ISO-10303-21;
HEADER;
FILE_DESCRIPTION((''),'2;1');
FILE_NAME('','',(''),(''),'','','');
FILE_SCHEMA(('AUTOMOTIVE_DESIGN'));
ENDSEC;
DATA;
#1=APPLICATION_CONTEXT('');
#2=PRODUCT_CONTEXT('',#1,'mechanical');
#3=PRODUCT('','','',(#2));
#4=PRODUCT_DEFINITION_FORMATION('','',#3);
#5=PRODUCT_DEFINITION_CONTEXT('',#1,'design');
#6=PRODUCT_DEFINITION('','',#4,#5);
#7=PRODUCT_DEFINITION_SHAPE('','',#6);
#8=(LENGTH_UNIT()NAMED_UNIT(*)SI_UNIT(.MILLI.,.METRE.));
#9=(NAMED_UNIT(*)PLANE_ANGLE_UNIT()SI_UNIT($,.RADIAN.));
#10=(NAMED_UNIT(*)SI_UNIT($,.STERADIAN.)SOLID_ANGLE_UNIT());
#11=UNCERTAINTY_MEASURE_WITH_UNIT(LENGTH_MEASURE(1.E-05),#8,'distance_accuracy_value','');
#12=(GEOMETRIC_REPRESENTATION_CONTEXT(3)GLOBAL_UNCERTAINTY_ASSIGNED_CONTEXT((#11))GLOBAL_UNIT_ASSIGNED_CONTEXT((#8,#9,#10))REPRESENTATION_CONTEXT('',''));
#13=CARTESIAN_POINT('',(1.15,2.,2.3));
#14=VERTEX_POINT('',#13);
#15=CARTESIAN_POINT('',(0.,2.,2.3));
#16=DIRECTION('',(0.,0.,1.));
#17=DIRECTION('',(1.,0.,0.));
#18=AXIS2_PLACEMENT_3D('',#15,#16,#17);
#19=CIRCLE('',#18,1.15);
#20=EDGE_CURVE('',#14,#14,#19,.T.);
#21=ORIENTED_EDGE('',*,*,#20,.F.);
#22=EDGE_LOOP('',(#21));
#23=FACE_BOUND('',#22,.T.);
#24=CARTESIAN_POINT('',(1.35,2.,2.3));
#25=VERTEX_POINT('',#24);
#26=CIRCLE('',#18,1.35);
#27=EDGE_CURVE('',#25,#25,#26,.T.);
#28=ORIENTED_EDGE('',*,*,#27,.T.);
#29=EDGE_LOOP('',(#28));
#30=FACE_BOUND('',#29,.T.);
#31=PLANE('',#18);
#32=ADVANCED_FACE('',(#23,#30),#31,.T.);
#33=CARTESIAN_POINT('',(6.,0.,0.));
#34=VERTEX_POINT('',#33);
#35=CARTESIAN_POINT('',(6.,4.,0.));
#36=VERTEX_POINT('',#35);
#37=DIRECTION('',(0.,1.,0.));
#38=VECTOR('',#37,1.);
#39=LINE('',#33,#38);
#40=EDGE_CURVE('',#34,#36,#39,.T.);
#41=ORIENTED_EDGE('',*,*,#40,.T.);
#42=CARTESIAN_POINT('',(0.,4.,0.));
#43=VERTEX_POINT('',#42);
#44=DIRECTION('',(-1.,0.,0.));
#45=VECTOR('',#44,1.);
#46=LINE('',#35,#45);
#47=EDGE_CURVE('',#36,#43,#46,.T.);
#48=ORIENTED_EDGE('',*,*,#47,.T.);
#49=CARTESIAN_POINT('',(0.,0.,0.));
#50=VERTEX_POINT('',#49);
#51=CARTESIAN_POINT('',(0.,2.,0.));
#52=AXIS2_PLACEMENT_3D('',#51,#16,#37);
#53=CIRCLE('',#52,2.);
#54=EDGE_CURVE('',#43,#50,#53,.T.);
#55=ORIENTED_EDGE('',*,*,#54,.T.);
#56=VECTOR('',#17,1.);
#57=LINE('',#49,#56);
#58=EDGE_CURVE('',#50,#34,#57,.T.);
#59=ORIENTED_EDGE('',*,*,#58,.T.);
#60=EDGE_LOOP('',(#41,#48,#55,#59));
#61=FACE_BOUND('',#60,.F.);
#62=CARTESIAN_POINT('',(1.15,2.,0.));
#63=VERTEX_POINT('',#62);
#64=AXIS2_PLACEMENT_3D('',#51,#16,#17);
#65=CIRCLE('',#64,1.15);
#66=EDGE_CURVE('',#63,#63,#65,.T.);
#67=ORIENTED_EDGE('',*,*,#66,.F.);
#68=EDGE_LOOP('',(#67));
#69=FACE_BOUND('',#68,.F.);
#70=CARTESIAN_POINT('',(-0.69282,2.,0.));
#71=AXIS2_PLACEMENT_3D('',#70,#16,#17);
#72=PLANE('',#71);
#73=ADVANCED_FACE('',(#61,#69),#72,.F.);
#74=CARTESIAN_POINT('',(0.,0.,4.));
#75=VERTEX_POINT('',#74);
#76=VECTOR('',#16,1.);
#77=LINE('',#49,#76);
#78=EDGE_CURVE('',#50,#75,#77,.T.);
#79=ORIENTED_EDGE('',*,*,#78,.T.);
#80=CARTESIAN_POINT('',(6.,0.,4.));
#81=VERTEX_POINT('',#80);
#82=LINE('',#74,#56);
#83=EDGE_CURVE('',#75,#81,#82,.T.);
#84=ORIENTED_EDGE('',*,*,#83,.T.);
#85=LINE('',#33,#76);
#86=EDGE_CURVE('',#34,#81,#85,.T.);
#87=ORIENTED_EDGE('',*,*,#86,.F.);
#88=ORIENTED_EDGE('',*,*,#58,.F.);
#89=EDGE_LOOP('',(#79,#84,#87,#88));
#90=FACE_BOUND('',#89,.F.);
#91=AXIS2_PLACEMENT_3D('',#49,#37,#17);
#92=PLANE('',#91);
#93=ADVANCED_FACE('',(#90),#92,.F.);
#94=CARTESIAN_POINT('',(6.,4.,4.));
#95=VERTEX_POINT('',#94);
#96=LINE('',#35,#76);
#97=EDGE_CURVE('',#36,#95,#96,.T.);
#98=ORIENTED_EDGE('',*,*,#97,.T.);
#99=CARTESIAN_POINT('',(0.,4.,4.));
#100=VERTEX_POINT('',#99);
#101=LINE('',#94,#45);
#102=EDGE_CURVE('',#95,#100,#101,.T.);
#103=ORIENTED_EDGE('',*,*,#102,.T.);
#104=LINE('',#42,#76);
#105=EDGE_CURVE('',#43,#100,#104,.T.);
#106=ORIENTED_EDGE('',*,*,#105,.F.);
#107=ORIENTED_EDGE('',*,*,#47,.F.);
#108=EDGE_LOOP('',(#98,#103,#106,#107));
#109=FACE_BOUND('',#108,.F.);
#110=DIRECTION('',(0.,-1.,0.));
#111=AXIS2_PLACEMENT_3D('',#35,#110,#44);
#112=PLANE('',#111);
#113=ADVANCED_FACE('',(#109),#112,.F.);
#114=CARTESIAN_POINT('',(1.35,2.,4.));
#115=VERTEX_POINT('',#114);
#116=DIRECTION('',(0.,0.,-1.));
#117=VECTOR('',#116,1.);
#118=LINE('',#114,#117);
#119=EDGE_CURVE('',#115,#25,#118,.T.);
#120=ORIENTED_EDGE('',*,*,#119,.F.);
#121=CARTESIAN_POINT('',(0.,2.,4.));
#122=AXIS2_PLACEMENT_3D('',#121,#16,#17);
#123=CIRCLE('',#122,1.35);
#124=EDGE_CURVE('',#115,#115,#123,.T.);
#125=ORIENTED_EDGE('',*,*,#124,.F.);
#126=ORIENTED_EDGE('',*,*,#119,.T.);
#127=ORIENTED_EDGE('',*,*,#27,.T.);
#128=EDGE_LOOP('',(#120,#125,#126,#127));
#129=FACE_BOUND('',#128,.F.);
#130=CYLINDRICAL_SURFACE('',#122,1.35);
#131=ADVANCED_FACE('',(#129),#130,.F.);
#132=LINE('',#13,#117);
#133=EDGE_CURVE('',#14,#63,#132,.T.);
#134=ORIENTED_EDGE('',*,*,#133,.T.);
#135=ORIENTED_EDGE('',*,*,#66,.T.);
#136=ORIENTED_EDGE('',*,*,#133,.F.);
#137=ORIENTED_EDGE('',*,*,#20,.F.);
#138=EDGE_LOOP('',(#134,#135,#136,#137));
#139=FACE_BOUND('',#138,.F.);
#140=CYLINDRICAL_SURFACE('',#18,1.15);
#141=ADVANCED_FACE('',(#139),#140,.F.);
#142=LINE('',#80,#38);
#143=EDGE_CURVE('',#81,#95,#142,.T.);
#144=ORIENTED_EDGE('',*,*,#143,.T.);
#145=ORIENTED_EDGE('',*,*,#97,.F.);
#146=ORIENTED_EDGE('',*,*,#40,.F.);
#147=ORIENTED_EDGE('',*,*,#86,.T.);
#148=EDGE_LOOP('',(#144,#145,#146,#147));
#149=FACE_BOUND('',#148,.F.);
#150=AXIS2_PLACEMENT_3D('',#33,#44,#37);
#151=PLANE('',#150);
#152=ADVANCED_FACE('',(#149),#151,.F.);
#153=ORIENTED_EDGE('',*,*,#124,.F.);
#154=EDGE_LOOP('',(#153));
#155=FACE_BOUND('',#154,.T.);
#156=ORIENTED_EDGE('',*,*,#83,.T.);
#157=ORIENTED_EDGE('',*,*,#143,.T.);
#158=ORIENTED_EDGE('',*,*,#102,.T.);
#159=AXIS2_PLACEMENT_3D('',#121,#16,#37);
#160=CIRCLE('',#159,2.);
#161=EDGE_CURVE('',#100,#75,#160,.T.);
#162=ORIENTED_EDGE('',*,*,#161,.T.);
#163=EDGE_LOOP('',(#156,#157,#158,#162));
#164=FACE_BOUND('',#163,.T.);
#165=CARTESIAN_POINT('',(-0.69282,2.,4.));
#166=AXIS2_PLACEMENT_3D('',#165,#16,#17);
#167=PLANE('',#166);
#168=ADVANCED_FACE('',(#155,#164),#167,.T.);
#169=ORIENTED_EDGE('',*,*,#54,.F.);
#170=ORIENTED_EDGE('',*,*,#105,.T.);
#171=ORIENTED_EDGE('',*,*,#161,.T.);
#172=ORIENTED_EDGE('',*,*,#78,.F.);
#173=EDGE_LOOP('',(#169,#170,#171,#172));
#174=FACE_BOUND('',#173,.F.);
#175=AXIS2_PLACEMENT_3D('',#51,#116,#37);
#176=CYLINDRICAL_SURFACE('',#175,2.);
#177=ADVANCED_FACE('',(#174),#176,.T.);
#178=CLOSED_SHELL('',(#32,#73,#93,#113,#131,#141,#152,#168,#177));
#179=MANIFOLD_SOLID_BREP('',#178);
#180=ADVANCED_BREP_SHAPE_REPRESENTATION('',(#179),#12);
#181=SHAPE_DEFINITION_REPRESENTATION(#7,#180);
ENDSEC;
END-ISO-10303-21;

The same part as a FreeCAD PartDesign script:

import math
import FreeCAD as App
import Part
import Sketcher
from FreeCAD import Vector
Q = App.Units.Quantity

doc = App.newDocument("Part")
body = doc.addObject("PartDesign::Body", "Body")

sketch1 = body.newObject("Sketcher::SketchObject", "Sketch")
sketch1.AttachmentSupport = (doc.getObject("XY_Plane"), [""])
sketch1.MapMode = "FlatFace"
sketch1.addGeometry(Part.ArcOfCircle(Part.Circle(Vector(0, 2, 0), Vector(0, 0, 1), 2), math.radians(90), math.radians(270)), False)
sketch1.addGeometry(Part.LineSegment(Vector(0, 0, 0), Vector(6, 0, 0)), False)
sketch1.addGeometry(Part.LineSegment(Vector(6, 0, 0), Vector(6, 4, 0)), False)
sketch1.addGeometry(Part.LineSegment(Vector(6, 4, 0), Vector(0, 4, 0)), False)
sketch1.addConstraint(Sketcher.Constraint("Tangent", 0, 2, 1, 1))
sketch1.addConstraint(Sketcher.Constraint("Coincident", 1, 2, 2, 1))
sketch1.addConstraint(Sketcher.Constraint("Coincident", 2, 2, 3, 1))
sketch1.addConstraint(Sketcher.Constraint("Tangent", 3, 2, 0, 1))
sketch1.addConstraint(Sketcher.Constraint("Horizontal", 1))
sketch1.addConstraint(Sketcher.Constraint("Vertical", 2))
sketch1.addConstraint(Sketcher.Constraint("Horizontal", 3))
sketch1.addConstraint(Sketcher.Constraint("Coincident", 0, 2, -1, 1))
sketch1.addConstraint(Sketcher.Constraint("Radius", 0, Q("2 mm")))
sketch1.addConstraint(Sketcher.Constraint("DistanceX", 1, 1, 1, 2, Q("6 mm")))
pad1 = body.newObject("PartDesign::Pad", "Pad")
pad1.Profile = sketch1
pad1.Length = 4

sketch2 = body.newObject("Sketcher::SketchObject", "Sketch001")
sketch2.AttachmentSupport = (doc.getObject("XY_Plane"), [""])
sketch2.MapMode = "FlatFace"
sketch2.AttachmentOffset = App.Placement(Vector(0, 0, 4), App.Rotation())
sketch2.addGeometry(Part.Circle(Vector(0, 2, 0), Vector(0, 0, 1), 1.4), False)
sketch2.addConstraint(Sketcher.Constraint("PointOnObject", 0, 3, -2))
sketch2.addConstraint(Sketcher.Constraint("Diameter", 0, Q("2.7 mm")))
sketch2.addConstraint(Sketcher.Constraint("DistanceY", -1, 1, 0, 3, Q("2 mm")))
pocket1 = body.newObject("PartDesign::Pocket", "Pocket")
pocket1.Profile = sketch2
pocket1.Length = 1.7

sketch3 = body.newObject("Sketcher::SketchObject", "Sketch002")
sketch3.AttachmentSupport = (doc.getObject("XY_Plane"), [""])
sketch3.MapMode = "FlatFace"
sketch3.AttachmentOffset = App.Placement(Vector(0, 0, 2.3), App.Rotation())
sketch3.addGeometry(Part.Circle(Vector(0, 2, 0), Vector(0, 0, 1), 1.1), False)
sketch3.addConstraint(Sketcher.Constraint("PointOnObject", 0, 3, -2))
sketch3.addConstraint(Sketcher.Constraint("Diameter", 0, Q("2.3 mm")))
sketch3.addConstraint(Sketcher.Constraint("DistanceY", -1, 1, 0, 3, Q("2 mm")))
pocket2 = body.newObject("PartDesign::Pocket", "Pocket001")
pocket2.Profile = sketch3
pocket2.Length = 4

doc.recompute()
